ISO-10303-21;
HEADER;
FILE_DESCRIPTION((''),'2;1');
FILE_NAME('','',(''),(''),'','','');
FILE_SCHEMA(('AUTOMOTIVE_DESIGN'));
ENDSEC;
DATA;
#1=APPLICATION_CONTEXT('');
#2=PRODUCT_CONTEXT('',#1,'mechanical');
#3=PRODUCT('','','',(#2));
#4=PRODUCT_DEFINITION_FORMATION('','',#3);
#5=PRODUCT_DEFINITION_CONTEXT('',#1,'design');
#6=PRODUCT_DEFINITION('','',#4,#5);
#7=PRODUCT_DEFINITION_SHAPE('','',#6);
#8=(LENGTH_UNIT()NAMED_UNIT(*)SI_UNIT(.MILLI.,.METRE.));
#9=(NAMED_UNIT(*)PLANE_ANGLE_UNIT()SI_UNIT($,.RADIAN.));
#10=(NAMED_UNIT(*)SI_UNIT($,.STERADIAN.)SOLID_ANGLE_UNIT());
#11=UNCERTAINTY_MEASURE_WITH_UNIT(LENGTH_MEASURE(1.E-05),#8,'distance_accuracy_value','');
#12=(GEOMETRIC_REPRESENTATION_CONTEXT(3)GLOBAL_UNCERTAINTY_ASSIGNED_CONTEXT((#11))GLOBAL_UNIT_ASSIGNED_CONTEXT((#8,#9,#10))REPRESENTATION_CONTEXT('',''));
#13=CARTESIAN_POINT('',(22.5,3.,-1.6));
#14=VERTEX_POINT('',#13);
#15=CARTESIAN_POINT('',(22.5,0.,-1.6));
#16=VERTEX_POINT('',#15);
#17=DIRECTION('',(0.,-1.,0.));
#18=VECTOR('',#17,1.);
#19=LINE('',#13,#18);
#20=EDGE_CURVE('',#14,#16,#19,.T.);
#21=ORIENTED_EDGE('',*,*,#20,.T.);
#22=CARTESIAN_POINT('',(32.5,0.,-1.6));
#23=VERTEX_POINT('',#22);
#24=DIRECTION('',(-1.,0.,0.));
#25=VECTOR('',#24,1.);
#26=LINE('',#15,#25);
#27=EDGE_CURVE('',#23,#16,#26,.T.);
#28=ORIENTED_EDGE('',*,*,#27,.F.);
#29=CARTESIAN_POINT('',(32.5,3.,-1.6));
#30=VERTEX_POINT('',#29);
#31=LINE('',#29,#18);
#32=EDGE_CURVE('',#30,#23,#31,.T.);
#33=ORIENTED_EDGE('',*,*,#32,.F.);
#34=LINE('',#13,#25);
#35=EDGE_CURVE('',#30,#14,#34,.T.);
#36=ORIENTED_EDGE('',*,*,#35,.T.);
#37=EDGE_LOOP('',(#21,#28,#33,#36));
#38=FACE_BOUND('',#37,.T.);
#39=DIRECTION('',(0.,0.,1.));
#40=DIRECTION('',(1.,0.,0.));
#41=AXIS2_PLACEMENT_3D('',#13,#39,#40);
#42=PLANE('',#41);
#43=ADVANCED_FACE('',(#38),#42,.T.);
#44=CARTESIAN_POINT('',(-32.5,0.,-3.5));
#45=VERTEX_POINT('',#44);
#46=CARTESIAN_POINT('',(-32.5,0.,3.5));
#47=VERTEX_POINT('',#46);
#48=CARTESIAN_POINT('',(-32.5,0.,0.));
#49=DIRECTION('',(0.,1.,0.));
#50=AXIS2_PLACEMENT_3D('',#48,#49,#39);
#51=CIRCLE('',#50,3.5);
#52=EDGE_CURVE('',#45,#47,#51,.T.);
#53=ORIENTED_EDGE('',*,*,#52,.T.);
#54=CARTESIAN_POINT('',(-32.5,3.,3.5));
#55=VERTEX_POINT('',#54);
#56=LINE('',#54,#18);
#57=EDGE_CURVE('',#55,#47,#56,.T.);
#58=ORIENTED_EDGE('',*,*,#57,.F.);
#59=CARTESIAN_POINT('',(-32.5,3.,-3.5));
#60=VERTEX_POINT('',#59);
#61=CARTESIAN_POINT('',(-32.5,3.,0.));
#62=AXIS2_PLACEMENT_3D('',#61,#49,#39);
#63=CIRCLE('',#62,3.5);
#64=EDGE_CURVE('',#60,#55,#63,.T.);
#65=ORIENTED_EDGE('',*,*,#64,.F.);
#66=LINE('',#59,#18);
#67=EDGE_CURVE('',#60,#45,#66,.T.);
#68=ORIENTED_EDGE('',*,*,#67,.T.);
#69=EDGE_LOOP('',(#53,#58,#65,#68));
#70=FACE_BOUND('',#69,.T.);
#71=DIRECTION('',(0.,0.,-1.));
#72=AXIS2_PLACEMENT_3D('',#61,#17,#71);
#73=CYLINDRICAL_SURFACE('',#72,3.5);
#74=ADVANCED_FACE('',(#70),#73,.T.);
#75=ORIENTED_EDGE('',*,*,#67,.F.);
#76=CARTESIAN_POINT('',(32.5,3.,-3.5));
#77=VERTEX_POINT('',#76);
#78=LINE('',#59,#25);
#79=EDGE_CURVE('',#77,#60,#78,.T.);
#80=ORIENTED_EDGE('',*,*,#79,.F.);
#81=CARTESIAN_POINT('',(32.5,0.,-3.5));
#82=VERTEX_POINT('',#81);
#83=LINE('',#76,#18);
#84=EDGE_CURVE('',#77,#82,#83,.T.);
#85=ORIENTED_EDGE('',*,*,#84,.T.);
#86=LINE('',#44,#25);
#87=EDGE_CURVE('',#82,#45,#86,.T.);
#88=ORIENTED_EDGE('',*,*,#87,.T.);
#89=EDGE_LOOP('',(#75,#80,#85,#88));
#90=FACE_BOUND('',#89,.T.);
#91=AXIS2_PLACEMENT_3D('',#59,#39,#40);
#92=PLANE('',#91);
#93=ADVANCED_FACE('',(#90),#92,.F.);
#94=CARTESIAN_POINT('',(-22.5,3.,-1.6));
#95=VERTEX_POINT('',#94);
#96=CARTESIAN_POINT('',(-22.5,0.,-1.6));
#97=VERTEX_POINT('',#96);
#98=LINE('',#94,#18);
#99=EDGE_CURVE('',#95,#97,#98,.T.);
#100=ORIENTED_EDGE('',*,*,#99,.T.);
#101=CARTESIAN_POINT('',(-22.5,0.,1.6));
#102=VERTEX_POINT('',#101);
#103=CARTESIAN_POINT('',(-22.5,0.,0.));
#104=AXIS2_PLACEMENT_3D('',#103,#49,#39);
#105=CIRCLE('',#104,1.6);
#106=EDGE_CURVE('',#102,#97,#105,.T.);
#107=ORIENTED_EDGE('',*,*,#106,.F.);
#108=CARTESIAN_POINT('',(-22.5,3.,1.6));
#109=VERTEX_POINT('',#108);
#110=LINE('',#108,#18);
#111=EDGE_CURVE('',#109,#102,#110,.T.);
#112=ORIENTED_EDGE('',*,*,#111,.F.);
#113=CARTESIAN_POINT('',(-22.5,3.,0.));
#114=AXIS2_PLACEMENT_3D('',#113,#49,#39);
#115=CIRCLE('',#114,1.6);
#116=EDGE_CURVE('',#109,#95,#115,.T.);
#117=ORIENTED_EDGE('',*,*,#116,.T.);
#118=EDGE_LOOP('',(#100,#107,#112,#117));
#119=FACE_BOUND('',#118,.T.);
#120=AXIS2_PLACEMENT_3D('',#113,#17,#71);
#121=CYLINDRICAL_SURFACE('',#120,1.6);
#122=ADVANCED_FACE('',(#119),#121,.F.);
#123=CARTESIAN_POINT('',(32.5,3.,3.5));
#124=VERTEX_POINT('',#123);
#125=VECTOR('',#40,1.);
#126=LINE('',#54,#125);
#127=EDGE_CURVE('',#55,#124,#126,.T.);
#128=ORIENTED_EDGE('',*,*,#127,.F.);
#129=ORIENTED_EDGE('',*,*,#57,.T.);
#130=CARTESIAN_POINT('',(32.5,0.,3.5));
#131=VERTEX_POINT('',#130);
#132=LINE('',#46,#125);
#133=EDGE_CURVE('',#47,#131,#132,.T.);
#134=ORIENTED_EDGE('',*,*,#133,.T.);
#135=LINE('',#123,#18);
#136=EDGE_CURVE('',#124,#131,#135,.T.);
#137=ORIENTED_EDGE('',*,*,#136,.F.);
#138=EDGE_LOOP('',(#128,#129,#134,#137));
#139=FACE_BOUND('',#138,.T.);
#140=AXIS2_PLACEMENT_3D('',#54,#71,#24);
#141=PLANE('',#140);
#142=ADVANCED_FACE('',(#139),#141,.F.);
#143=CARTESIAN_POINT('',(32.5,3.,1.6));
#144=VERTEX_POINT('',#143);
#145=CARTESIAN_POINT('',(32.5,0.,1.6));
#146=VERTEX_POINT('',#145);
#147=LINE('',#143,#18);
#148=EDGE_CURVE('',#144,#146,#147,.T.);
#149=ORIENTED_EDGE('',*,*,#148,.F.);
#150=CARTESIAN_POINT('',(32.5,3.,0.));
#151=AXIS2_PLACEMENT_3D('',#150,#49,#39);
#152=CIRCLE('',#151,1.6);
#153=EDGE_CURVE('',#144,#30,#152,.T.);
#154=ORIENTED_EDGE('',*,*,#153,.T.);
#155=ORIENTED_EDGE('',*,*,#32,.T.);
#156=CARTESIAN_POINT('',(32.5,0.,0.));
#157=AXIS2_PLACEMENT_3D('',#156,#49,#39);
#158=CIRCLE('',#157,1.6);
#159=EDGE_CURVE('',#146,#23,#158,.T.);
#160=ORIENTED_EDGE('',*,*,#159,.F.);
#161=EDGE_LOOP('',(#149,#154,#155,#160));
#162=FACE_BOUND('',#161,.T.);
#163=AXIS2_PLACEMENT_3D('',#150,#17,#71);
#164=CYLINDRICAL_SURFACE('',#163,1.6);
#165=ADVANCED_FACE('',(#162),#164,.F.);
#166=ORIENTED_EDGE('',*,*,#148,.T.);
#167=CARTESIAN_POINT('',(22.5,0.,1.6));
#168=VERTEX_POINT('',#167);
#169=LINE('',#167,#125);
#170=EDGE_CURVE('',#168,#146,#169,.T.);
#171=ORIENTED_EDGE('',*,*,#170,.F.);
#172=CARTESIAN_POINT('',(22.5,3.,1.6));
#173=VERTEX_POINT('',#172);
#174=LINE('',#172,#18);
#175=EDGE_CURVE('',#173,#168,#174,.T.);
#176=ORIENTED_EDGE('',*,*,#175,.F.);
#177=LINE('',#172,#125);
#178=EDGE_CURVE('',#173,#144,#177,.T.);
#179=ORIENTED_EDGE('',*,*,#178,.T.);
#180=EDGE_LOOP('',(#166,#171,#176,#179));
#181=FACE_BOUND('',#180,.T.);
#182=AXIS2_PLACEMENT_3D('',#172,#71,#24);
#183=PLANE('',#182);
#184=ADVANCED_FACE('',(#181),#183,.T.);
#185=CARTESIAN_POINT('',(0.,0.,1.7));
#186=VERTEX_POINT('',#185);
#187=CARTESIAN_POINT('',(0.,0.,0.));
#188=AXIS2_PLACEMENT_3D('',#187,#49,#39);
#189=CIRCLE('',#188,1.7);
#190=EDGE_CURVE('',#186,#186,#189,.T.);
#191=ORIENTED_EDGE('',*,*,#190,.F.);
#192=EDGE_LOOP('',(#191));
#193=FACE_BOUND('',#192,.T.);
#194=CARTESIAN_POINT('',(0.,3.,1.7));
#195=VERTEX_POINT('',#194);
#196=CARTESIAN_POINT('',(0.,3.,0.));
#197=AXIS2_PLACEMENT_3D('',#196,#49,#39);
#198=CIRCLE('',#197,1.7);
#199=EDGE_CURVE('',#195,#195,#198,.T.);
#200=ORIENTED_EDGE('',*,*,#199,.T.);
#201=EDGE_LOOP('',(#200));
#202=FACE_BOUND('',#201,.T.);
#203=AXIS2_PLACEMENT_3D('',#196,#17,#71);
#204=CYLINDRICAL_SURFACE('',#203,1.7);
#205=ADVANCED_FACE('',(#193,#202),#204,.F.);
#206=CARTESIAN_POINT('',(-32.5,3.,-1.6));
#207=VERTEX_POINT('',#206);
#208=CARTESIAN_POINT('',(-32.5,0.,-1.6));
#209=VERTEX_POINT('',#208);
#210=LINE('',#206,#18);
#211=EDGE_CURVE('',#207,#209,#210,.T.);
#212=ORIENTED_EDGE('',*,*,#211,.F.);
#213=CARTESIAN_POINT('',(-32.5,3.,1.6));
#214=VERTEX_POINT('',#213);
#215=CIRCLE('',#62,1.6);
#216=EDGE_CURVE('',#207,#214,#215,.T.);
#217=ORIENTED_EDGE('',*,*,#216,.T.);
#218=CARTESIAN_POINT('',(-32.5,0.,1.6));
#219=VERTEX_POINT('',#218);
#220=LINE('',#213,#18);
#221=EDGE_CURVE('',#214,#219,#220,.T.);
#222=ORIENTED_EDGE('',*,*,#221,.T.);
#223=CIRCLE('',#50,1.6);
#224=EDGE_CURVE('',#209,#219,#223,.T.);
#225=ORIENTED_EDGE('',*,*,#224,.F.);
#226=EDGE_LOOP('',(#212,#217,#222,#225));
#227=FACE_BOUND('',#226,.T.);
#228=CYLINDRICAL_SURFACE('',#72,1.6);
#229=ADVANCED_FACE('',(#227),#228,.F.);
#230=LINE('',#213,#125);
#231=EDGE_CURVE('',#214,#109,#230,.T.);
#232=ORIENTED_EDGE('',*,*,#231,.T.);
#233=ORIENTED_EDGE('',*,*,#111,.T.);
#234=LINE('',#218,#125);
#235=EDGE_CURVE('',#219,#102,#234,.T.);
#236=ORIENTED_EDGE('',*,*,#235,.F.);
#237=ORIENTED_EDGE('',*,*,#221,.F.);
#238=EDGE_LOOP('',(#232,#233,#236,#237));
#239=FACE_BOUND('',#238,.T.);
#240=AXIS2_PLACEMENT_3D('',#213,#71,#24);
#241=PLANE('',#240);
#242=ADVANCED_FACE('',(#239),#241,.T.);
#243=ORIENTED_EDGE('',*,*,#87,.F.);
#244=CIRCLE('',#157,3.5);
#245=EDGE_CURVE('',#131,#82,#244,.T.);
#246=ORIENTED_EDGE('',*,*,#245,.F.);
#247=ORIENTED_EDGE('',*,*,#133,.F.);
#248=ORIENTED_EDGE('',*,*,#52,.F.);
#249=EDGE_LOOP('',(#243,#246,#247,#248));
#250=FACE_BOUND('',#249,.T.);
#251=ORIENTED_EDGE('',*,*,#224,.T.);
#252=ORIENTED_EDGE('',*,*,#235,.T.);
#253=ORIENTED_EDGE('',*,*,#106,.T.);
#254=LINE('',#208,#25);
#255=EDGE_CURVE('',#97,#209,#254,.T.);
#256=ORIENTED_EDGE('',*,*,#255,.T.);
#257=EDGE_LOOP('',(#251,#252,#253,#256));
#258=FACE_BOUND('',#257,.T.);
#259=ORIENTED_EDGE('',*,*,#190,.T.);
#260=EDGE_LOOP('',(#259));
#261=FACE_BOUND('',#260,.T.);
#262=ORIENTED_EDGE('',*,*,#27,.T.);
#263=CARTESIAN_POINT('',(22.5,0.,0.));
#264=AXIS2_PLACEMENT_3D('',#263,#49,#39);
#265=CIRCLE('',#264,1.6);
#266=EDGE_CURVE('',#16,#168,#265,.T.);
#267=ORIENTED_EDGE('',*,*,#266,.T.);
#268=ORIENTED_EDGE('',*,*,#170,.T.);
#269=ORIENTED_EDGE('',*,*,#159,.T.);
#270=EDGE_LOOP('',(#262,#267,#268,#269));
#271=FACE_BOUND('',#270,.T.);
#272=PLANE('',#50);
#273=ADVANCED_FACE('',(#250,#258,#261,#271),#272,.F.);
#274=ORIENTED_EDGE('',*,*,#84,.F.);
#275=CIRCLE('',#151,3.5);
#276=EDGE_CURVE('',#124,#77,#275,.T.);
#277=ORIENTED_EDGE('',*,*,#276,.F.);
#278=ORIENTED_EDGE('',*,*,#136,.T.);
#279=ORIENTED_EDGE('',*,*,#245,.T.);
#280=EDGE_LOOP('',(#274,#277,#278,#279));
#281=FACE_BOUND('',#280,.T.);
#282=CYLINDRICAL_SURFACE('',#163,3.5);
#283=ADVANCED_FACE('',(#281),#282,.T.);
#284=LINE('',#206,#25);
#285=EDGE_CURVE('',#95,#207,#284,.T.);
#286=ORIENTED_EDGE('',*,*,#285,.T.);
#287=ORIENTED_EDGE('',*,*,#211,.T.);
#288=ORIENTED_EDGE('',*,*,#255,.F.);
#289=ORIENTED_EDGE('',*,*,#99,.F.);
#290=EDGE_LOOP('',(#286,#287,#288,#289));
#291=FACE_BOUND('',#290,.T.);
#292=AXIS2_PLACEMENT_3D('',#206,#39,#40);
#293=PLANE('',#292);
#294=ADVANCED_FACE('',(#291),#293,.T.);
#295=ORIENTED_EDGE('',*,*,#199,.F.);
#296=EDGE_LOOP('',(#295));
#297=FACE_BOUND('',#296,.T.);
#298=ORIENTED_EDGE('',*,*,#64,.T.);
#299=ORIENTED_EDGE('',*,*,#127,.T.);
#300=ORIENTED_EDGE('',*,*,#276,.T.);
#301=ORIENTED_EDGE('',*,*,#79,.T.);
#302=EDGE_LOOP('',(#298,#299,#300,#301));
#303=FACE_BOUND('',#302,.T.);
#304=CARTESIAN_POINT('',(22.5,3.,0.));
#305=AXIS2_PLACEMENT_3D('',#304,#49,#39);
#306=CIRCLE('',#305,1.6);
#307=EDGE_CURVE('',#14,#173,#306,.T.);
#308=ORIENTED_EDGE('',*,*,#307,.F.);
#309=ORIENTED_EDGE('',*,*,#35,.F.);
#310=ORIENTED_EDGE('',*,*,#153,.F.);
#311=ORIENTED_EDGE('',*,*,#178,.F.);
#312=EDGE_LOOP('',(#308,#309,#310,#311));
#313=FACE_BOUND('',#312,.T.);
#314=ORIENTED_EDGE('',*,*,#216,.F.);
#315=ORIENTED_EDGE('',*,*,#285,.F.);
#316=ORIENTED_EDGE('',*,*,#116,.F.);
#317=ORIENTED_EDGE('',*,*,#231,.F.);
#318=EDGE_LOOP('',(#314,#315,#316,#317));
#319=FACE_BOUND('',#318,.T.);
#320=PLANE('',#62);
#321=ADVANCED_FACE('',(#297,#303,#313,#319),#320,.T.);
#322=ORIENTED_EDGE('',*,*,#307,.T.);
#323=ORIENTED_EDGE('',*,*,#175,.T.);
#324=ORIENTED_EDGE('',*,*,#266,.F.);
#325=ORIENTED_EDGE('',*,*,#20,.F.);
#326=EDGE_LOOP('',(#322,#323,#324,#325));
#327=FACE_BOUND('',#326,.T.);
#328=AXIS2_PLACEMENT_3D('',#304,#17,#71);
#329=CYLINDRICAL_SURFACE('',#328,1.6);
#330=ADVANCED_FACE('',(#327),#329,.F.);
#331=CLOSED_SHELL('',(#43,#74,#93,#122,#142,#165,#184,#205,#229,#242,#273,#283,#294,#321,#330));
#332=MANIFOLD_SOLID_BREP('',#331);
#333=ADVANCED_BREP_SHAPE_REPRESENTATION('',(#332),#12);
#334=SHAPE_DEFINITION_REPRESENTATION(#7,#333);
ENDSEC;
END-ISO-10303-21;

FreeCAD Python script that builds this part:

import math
import FreeCAD as App
import Part
import Sketcher

V = App.Vector
Q = App.Units.Quantity

doc = App.newDocument("Part")
body = doc.addObject("PartDesign::Body", "Body")

sketch1 = body.newObject("Sketcher::SketchObject", "Sketch")
sketch1.AttachmentSupport = (doc.getObject("XZ_Plane"), [""])
sketch1.MapMode = "FlatFace"
sketch1.addGeometry([
    Part.LineSegment(V(32.5, -3.5, 0), V(-32.5, -3.5, 0)),
    Part.ArcOfCircle(Part.Circle(V(-32.5, 0, 0), V(0, 0, 1), 3.5), math.radians(90), math.radians(270)),
    Part.LineSegment(V(-32.5, 3.5, 0), V(32.5, 3.5, 0)),
    Part.ArcOfCircle(Part.Circle(V(32.5, 0, 0), V(0, 0, 1), 3.5), math.radians(-90), math.radians(90)),
    Part.LineSegment(V(22.5, -1.6, 0), V(32.5, -1.6, 0)),
    Part.ArcOfCircle(Part.Circle(V(32.5, 0, 0), V(0, 0, 1), 1.6), math.radians(-90), math.radians(90)),
    Part.LineSegment(V(32.5, 1.6, 0), V(22.5, 1.6, 0)),
    Part.ArcOfCircle(Part.Circle(V(22.5, 0, 0), V(0, 0, 1), 1.6), math.radians(90), math.radians(270)),
    Part.Circle(V(0, 0, 0), V(0, 0, 1), 1.7),
    Part.ArcOfCircle(Part.Circle(V(-32.5, 0, 0), V(0, 0, 1), 1.6), math.radians(90), math.radians(270)),
    Part.LineSegment(V(-32.5, -1.6, 0), V(-22.5, -1.6, 0)),
    Part.ArcOfCircle(Part.Circle(V(-22.5, 0, 0), V(0, 0, 1), 1.6), math.radians(-90), math.radians(90)),
    Part.LineSegment(V(-22.5, 1.6, 0), V(-32.5, 1.6, 0)),
], False)
sketch1.addConstraint([
    Sketcher.Constraint("Tangent", 0, 2, 1, 2),
    Sketcher.Constraint("Tangent", 1, 1, 2, 1),
    Sketcher.Constraint("Tangent", 2, 2, 3, 2),
    Sketcher.Constraint("Tangent", 3, 1, 0, 1),
    Sketcher.Constraint("Tangent", 4, 2, 5, 1),
    Sketcher.Constraint("Tangent", 5, 2, 6, 1),
    Sketcher.Constraint("Tangent", 6, 2, 7, 1),
    Sketcher.Constraint("Tangent", 7, 2, 4, 1),
    Sketcher.Constraint("Tangent", 9, 2, 10, 1),
    Sketcher.Constraint("Tangent", 10, 2, 11, 1),
    Sketcher.Constraint("Tangent", 11, 2, 12, 1),
    Sketcher.Constraint("Tangent", 12, 2, 9, 1),
    Sketcher.Constraint("Horizontal", 0),
    Sketcher.Constraint("Horizontal", 2),
    Sketcher.Constraint("Horizontal", 4),
    Sketcher.Constraint("Horizontal", 6),
    Sketcher.Constraint("Horizontal", 10),
    Sketcher.Constraint("Horizontal", 12),
    Sketcher.Constraint("Coincident", 8, 3, -1, 1),
    Sketcher.Constraint("Coincident", 5, 3, 3, 3),
    Sketcher.Constraint("Coincident", 9, 3, 1, 3),
    Sketcher.Constraint("Equal", 7, 9),
    Sketcher.Constraint("Symmetric", 1, 3, 3, 3, -1, 1),
    Sketcher.Constraint("Equal", 6, 10),
    Sketcher.Constraint("Diameter", 8, Q("3.4 mm")),
    Sketcher.Constraint("Radius", 1, Q("3.5 mm")),
    Sketcher.Constraint("Radius", 5, Q("1.6 mm")),
    Sketcher.Constraint("DistanceX", 0, 2, 0, 1, Q("65 mm")),
    Sketcher.Constraint("DistanceX", 4, 1, 4, 2, Q("10 mm")),
])
pad1 = body.newObject("PartDesign::Pad", "Pad")
pad1.Profile = sketch1
pad1.Length = 3
pad1.Reversed = True

doc.recompute()
